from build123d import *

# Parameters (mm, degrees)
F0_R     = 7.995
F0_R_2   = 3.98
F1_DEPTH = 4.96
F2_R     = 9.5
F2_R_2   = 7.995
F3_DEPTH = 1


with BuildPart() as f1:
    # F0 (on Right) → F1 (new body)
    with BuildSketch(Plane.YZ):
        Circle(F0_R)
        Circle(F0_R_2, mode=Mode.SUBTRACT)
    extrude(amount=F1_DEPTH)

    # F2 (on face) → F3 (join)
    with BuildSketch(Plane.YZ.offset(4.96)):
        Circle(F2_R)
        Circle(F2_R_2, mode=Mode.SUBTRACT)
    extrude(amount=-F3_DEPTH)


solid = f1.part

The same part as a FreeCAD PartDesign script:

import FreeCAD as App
import Part
import Sketcher
Q = App.Units.Quantity

doc = App.newDocument("Part")
params = doc.addObject("Spreadsheet::Sheet", "Params")
for row, (alias, value) in enumerate([
    ("sketch1_diameter", "15.99 mm"),
    ("sketch1_diameter2", "7.96 mm"),
    ("pad1_length", "4.96 mm"),
    ("sketch2_diameter", "19 mm"),
    ("sketch2_diameter2", "15.99 mm"),
    ("pad2_length", "1 mm"),
], start=1):
    params.set(f"A{row}", alias)
    params.set(f"B{row}", "=" + value)
    params.setAlias(f"B{row}", alias)

body = doc.addObject("PartDesign::Body", "Body")

sketch1 = doc.addObject("Sketcher::SketchObject", "Sketch")
body.addObject(sketch1)
sketch1.AttachmentSupport = (doc.YZ_Plane, [""])
sketch1.MapMode = "FlatFace"
sketch1.addGeometry([
    Part.Circle(App.Vector(0, 0, 0), App.Vector(0, 0, 1), 8),
    Part.Circle(App.Vector(0, 0, 0), App.Vector(0, 0, 1), 4),
], False)
sketch1.addConstraint([
    Sketcher.Constraint("Coincident", 0, 3, -1, 1),
    Sketcher.Constraint("Coincident", 1, 3, -1, 1),
    Sketcher.Constraint("Diameter", 0, Q("15.99 mm")),
    Sketcher.Constraint("Diameter", 1, Q("7.96 mm")),
])
sketch1.setExpression("Constraints[2]", "Params.sketch1_diameter")
sketch1.setExpression("Constraints[3]", "Params.sketch1_diameter2")
pad1 = doc.addObject("PartDesign::Pad", "Pad")
body.addObject(pad1)
pad1.Profile = sketch1
pad1.setExpression("Length", "Params.pad1_length")

sketch2 = doc.addObject("Sketcher::SketchObject", "Sketch001")
body.addObject(sketch2)
sketch2.AttachmentSupport = (doc.YZ_Plane, [""])
sketch2.MapMode = "FlatFace"
sketch2.AttachmentOffset = App.Placement(App.Vector(0, 0, 4.96), App.Rotation())
sketch2.addGeometry([
    Part.Circle(App.Vector(0, 0, 0), App.Vector(0, 0, 1), 10),
    Part.Circle(App.Vector(0, 0, 0), App.Vector(0, 0, 1), 8),
], False)
sketch2.addConstraint([
    Sketcher.Constraint("Coincident", 0, 3, -1, 1),
    Sketcher.Constraint("Coincident", 1, 3, -1, 1),
    Sketcher.Constraint("Diameter", 0, Q("19 mm")),
    Sketcher.Constraint("Diameter", 1, Q("15.99 mm")),
])
sketch2.setExpression("Constraints[2]", "Params.sketch2_diameter")
sketch2.setExpression("Constraints[3]", "Params.sketch2_diameter2")
pad2 = doc.addObject("PartDesign::Pad", "Pad001")
body.addObject(pad2)
pad2.Profile = sketch2
pad2.setExpression("Length", "Params.pad2_length")
pad2.Reversed = True

doc.recompute()
